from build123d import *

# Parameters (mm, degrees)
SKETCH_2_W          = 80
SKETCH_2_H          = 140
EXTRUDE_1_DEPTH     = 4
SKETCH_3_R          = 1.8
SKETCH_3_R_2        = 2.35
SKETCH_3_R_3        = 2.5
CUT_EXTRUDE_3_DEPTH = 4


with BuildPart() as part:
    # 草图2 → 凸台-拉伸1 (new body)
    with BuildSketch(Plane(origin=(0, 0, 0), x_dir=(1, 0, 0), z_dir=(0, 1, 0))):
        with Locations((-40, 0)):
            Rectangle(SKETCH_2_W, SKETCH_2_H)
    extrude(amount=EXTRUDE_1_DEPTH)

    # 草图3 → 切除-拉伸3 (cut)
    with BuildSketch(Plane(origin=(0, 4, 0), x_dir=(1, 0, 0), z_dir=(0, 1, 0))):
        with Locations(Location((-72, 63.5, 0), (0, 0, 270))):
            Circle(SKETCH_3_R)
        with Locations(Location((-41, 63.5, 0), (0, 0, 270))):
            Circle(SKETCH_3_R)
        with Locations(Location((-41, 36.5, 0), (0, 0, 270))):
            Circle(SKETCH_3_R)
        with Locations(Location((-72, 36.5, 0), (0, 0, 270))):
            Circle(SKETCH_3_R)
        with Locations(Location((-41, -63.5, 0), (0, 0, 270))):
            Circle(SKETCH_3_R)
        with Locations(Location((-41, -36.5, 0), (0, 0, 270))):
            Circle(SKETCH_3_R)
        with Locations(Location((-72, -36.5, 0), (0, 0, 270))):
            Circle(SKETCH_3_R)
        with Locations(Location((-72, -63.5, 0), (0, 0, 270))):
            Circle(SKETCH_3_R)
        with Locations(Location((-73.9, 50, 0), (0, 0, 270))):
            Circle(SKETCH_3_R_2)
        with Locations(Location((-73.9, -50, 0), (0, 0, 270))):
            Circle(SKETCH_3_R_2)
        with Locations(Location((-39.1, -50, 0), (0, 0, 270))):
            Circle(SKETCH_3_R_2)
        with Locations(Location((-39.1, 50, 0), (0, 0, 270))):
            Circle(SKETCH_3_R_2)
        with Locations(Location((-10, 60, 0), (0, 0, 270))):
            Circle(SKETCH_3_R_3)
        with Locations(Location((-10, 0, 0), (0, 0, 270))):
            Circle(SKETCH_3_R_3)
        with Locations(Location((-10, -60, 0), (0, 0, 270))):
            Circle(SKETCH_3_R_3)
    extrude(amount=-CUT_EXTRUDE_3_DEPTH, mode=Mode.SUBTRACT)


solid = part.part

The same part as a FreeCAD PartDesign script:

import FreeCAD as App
import Part
import Sketcher

V = App.Vector


def add_polygon(sketch, points):
    """Adds a closed chain of lines whose ends are joined by coincident constraints."""
    first, n = sketch.GeometryCount, len(points)
    for a, b in zip(points, points[1:] + points[:1]):
        sketch.addGeometry(Part.LineSegment(App.Vector(*a, 0), App.Vector(*b, 0)), False)
    for i in range(n):
        sketch.addConstraint(Sketcher.Constraint("Coincident", first + i, 2, first + (i + 1) % n, 1))

doc = App.newDocument("Part")
body = doc.addObject("PartDesign::Body", "Body")

sketch1 = doc.addObject("Sketcher::SketchObject", "Sketch")
body.addObject(sketch1)
sketch1.AttachmentSupport = (doc.XZ_Plane, [""])
sketch1.MapMode = "FlatFace"
add_polygon(sketch1, [(-80, -70), (-80, 70), (0, 70), (0, -70)])
sketch1.addConstraint(Sketcher.Constraint("Vertical", 0))
sketch1.addConstraint(Sketcher.Constraint("Horizontal", 1))
sketch1.addConstraint(Sketcher.Constraint("Vertical", 2))
sketch1.addConstraint(Sketcher.Constraint("Horizontal", 3))
sketch1.addConstraint(Sketcher.Constraint("Symmetric", 1, 2, 2, 2, -1, 1))
sketch1.addConstraint(Sketcher.Constraint("DistanceX", 1, 1, 1, 2, 80.0))
sketch1.addConstraint(Sketcher.Constraint("DistanceY", 0, 1, 0, 2, 140.0))
pad1 = doc.addObject("PartDesign::Pad", "Pad")
body.addObject(pad1)
pad1.Profile = sketch1
pad1.Length = 4
pad1.Reversed = True

sketch2 = doc.addObject("Sketcher::SketchObject", "Sketch001")
body.addObject(sketch2)
sketch2.AttachmentSupport = (doc.XZ_Plane, [""])
sketch2.MapMode = "FlatFace"
sketch2.AttachmentOffset = App.Placement(V(0, 0, -4), App.Rotation())
sketch2.addGeometry(Part.Circle(V(-72, -63.5, 0), V(0, 0, 1), 1.8), False)
sketch2.addGeometry(Part.Circle(V(-41, -63.5, 0), V(0, 0, 1), 1.8), False)
sketch2.addGeometry(Part.Circle(V(-41, -36.5, 0), V(0, 0, 1), 1.8), False)
sketch2.addGeometry(Part.Circle(V(-72, -36.5, 0), V(0, 0, 1), 1.8), False)
sketch2.addGeometry(Part.Circle(V(-41, 63.5, 0), V(0, 0, 1), 1.8), False)
sketch2.addGeometry(Part.Circle(V(-41, 36.5, 0), V(0, 0, 1), 1.8), False)
sketch2.addGeometry(Part.Circle(V(-72, 36.5, 0), V(0, 0, 1), 1.8), False)
sketch2.addGeometry(Part.Circle(V(-72, 63.5, 0), V(0, 0, 1), 1.8), False)
sketch2.addGeometry(Part.Circle(V(-73.9, -50, 0), V(0, 0, 1), 2.35), False)
sketch2.addGeometry(Part.Circle(V(-73.9, 50, 0), V(0, 0, 1), 2.35), False)
sketch2.addGeometry(Part.Circle(V(-39.1, 50, 0), V(0, 0, 1), 2.35), False)
sketch2.addGeometry(Part.Circle(V(-39.1, -50, 0), V(0, 0, 1), 2.35), False)
sketch2.addGeometry(Part.Circle(V(-10, -60, 0), V(0, 0, 1), 2.5), False)
sketch2.addGeometry(Part.Circle(V(-10, 0, 0), V(0, 0, 1), 2.5), False)
sketch2.addGeometry(Part.Circle(V(-10, 60, 0), V(0, 0, 1), 2.5), False)
sketch2.addConstraint(Sketcher.Constraint("Equal", 0, 1))
sketch2.addConstraint(Sketcher.Constraint("Equal", 1, 2))
sketch2.addConstraint(Sketcher.Constraint("Equal", 2, 3))
sketch2.addConstraint(Sketcher.Constraint("Equal", 3, 4))
sketch2.addConstraint(Sketcher.Constraint("Equal", 4, 5))
sketch2.addConstraint(Sketcher.Constraint("Equal", 5, 6))
sketch2.addConstraint(Sketcher.Constraint("Equal", 6, 7))
sketch2.addConstraint(Sketcher.Constraint("Equal", 8, 9))
sketch2.addConstraint(Sketcher.Constraint("Equal", 9, 10))
sketch2.addConstraint(Sketcher.Constraint("Equal", 10, 11))
sketch2.addConstraint(Sketcher.Constraint("Equal", 12, 13))
sketch2.addConstraint(Sketcher.Constraint("Equal", 13, 14))
sketch2.addConstraint(Sketcher.Constraint("Symmetric", 1, 3, 4, 3, -1))
sketch2.addConstraint(Sketcher.Constraint("Symmetric", 2, 3, 5, 3, -1))
sketch2.addConstraint(Sketcher.Constraint("Symmetric", 3, 3, 6, 3, -1))
sketch2.addConstraint(Sketcher.Constraint("Symmetric", 0, 3, 7, 3, -1))
sketch2.addConstraint(Sketcher.Constraint("Symmetric", 8, 3, 9, 3, -1))
sketch2.addConstraint(Sketcher.Constraint("Symmetric", 10, 3, 11, 3, -1))
sketch2.addConstraint(Sketcher.Constraint("Symmetric", 12, 3, 14, 3, -1))
sketch2.addConstraint(Sketcher.Constraint("PointOnObject", 13, 3, -1))
sketch2.addConstraint(Sketcher.Constraint("Horizontal", 0, 3, 1, 3))
sketch2.addConstraint(Sketcher.Constraint("Horizontal", 2, 3, 3, 3))
sketch2.addConstraint(Sketcher.Constraint("Horizontal", 9, 3, 10, 3))
sketch2.addConstraint(Sketcher.Constraint("Vertical", 1, 3, 2, 3))
sketch2.addConstraint(Sketcher.Constraint("Vertical", 0, 3, 3, 3))
sketch2.addConstraint(Sketcher.Constraint("Vertical", 12, 3, 13, 3))
sketch2.addConstraint(Sketcher.Constraint("Diameter", 12, 5.0))
sketch2.addConstraint(Sketcher.Constraint("Diameter", 0, 3.6))
sketch2.addConstraint(Sketcher.Constraint("Diameter", 8, 4.7))
sketch2.addConstraint(Sketcher.Constraint("DistanceX", 0, 3, -1, 1, 72.0))
sketch2.addConstraint(Sketcher.Constraint("DistanceX", 1, 3, -1, 1, 41.0))
sketch2.addConstraint(Sketcher.Constraint("DistanceY", 8, 3, -1, 1, 50.0))
sketch2.addConstraint(Sketcher.Constraint("DistanceX", 12, 3, -1, 1, 10.0))
sketch2.addConstraint(Sketcher.Constraint("DistanceY", 12, 3, -1, 1, 60.0))
sketch2.addConstraint(Sketcher.Constraint("DistanceY", 1, 3, 2, 3, 27.0))
sketch2.addConstraint(Sketcher.Constraint("DistanceY", 2, 3, 4, 3, 100.0))
sketch2.addConstraint(Sketcher.Constraint("DistanceX", 8, 3, -1, 1, 73.9))
sketch2.addConstraint(Sketcher.Constraint("DistanceX", 10, 3, -1, 1, 39.1))
pocket1 = doc.addObject("PartDesign::Pocket", "Pocket")
body.addObject(pocket1)
pocket1.Profile = sketch2
pocket1.Length = 4
pocket1.Reversed = True

doc.recompute()
